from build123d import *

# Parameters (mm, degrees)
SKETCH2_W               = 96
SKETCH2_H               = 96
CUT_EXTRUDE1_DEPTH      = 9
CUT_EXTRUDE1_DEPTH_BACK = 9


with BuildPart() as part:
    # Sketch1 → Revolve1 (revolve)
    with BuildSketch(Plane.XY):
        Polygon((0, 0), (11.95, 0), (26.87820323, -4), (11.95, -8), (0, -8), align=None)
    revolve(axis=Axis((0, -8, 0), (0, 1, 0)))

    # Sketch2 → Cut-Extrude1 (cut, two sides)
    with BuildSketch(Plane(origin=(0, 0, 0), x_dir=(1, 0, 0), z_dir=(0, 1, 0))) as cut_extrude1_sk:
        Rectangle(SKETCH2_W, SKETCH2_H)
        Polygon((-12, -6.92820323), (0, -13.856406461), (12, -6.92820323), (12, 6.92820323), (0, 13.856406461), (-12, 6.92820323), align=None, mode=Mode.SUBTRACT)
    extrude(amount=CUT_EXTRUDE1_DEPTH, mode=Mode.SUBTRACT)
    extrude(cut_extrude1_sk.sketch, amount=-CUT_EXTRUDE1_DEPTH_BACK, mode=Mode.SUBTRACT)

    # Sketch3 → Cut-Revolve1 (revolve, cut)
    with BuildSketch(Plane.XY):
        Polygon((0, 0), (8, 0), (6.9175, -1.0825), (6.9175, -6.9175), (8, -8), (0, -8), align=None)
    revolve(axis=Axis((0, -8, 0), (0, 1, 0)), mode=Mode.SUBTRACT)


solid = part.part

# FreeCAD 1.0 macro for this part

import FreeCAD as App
import Part
import Sketcher
Q = App.Units.Quantity


def add_polygon(sketch, points):
    """Adds a closed chain of lines whose ends are joined by coincident constraints."""
    first, n = sketch.GeometryCount, len(points)
    for a, b in zip(points, points[1:] + points[:1]):
        sketch.addGeometry(Part.LineSegment(App.Vector(*a, 0), App.Vector(*b, 0)), False)
    for i in range(n):
        sketch.addConstraint(Sketcher.Constraint("Coincident", first + i, 2, first + (i + 1) % n, 1))

doc = App.newDocument("Part")
body = doc.addObject("PartDesign::Body", "Body")

sketch1 = body.newObject("Sketcher::SketchObject", "Sketch")
sketch1.AttachmentSupport = (doc.getObject("XY_Plane"), [""])
sketch1.MapMode = "FlatFace"
add_polygon(sketch1, [(11.95, 0), (0, 0), (0, -8), (11.95, -8), (26.878203, -4)])
sketch1.addConstraint(Sketcher.Constraint("Horizontal", 0))
sketch1.addConstraint(Sketcher.Constraint("Vertical", 1))
sketch1.addConstraint(Sketcher.Constraint("Horizontal", 2))
sketch1.addConstraint(Sketcher.Constraint("Coincident", 0, 2, -1, 1))
sketch1.addConstraint(Sketcher.Constraint("Vertical", 2, 2, 4, 2))
sketch1.addConstraint(Sketcher.Constraint("Equal", 3, 4))
sketch1.addConstraint(Sketcher.Constraint("DistanceY", 1, 2, 1, 1, 8.0))
sketch1.addConstraint(Sketcher.Constraint("Angle", 3, Q("15 deg")))
sketch1.addConstraint(Sketcher.Constraint("DistanceX", 0, 2, 0, 1, 11.95))
revolution = body.newObject("PartDesign::Revolution", "Revolution")
revolution.Profile = sketch1
revolution.ReferenceAxis = (sketch1, ["V_Axis"])
revolution.Angle = 360

sketch2 = body.newObject("Sketcher::SketchObject", "Sketch001")
sketch2.AttachmentSupport = (doc.getObject("XZ_Plane"), [""])
sketch2.MapMode = "FlatFace"
add_polygon(sketch2, [(-48, -48), (-48, 48), (48, 48), (48, -48)])
add_polygon(sketch2, [(0, 13.856406), (-12, 6.928203), (-12, -6.928203), (0, -13.856406), (12, -6.928203), (12, 6.928203)])
sketch2.addConstraint(Sketcher.Constraint("Vertical", 0))
sketch2.addConstraint(Sketcher.Constraint("Horizontal", 1))
sketch2.addConstraint(Sketcher.Constraint("Vertical", 2))
sketch2.addConstraint(Sketcher.Constraint("Horizontal", 3))
sketch2.addConstraint(Sketcher.Constraint("Vertical", 5))
sketch2.addConstraint(Sketcher.Constraint("Vertical", 8))
sketch2.addConstraint(Sketcher.Constraint("Symmetric", 0, 2, 2, 2, -1, 1))
sketch2.addConstraint(Sketcher.Constraint("Symmetric", 4, 2, 7, 2, -1, 1))
sketch2.addConstraint(Sketcher.Constraint("Symmetric", 6, 2, 9, 2, -1, 1))
sketch2.addConstraint(Sketcher.Constraint("PointOnObject", 6, 2, -2))
sketch2.addConstraint(Sketcher.Constraint("Parallel", 6, 9))
sketch2.addConstraint(Sketcher.Constraint("Horizontal", 5, 2, 7, 2))
sketch2.addConstraint(Sketcher.Constraint("Equal", 3, 0))
sketch2.addConstraint(Sketcher.Constraint("DistanceX", 1, 1, 1, 2, 96.0))
sketch2.addConstraint(Sketcher.Constraint("Angle", 4, Q("-150 deg")))
sketch2.addConstraint(Sketcher.Constraint("DistanceX", 4, 2, -1, 1, 12.0))
sketch2.addConstraint(Sketcher.Constraint("DistanceY", 5, 2, 5, 1, 13.856406))
pocket1 = body.newObject("PartDesign::Pocket", "Pocket")
pocket1.Profile = sketch2
pocket1.Type = "ThroughAll"
pocket1.Midplane = True

sketch3 = body.newObject("Sketcher::SketchObject", "Sketch002")
sketch3.AttachmentSupport = (doc.getObject("XY_Plane"), [""])
sketch3.MapMode = "FlatFace"
add_polygon(sketch3, [(8, 0), (0, 0), (0, -8), (8, -8), (6.9175, -6.9175), (6.9175, -1.0825)])
sketch3.addConstraint(Sketcher.Constraint("Horizontal", 0))
sketch3.addConstraint(Sketcher.Constraint("Vertical", 1))
sketch3.addConstraint(Sketcher.Constraint("Horizontal", 2))
sketch3.addConstraint(Sketcher.Constraint("Vertical", 4))
sketch3.addConstraint(Sketcher.Constraint("Coincident", 0, 2, -1, 1))
sketch3.addConstraint(Sketcher.Constraint("Perpendicular", 3, 5))
sketch3.addConstraint(Sketcher.Constraint("Vertical", 2, 2, 5, 2))
sketch3.addConstraint(Sketcher.Constraint("Equal", 2, 1))
sketch3.addConstraint(Sketcher.Constraint("Equal", 3, 5))
sketch3.addConstraint(Sketcher.Constraint("DistanceX", 0, 2, 0, 1, 8.0))
sketch3.addConstraint(Sketcher.Constraint("DistanceY", 4, 1, 4, 2, 5.835))
groove = body.newObject("PartDesign::Groove", "Groove")
groove.Profile = sketch3
groove.ReferenceAxis = (sketch3, ["V_Axis"])
groove.Angle = 360

doc.recompute()
